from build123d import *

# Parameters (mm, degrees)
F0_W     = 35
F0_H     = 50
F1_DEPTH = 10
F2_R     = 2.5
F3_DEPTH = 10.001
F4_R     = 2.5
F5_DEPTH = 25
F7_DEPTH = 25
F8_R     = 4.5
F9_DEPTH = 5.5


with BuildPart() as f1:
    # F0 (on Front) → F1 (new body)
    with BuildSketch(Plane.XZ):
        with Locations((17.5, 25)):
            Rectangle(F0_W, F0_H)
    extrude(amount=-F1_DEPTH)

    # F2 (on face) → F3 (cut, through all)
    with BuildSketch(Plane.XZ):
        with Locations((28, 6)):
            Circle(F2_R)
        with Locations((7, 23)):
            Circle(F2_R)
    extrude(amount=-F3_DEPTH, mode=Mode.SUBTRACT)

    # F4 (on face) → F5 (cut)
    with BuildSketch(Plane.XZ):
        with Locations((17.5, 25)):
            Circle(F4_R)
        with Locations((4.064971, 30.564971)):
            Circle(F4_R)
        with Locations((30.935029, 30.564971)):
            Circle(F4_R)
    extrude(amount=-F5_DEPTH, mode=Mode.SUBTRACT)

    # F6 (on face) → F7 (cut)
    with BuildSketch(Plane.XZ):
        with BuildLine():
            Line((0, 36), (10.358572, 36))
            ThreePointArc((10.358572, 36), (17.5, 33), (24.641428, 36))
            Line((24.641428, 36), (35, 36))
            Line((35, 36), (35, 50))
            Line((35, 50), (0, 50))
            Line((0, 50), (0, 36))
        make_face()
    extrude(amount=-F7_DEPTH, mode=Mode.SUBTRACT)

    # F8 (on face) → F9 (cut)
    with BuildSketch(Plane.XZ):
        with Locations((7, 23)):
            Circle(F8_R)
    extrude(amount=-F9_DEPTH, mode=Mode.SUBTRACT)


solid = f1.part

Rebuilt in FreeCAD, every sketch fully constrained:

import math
import FreeCAD as App
import Part
import Sketcher
from FreeCAD import Vector


def add_polygon(sketch, points):
    """Adds a closed chain of lines whose ends are joined by coincident constraints."""
    first, n = sketch.GeometryCount, len(points)
    for a, b in zip(points, points[1:] + points[:1]):
        sketch.addGeometry(Part.LineSegment(App.Vector(*a, 0), App.Vector(*b, 0)), False)
    for i in range(n):
        sketch.addConstraint(Sketcher.Constraint("Coincident", first + i, 2, first + (i + 1) % n, 1))

doc = App.newDocument("Part")
params = doc.addObject("Spreadsheet::Sheet", "Params")
for row, (alias, value) in enumerate([
    ("sketch1_width", "35 mm"),
    ("sketch1_height", "50 mm"),
    ("pad1_length", "10 mm"),
    ("sketch2_diameter", "5 mm"),
    ("sketch3_diameter", "5 mm"),
    ("pocket2_length", "25 mm"),
    ("sketch4_radius", "9.999999 mm"),
    ("sketch4_width", "35 mm"),
    ("sketch4_height", "14 mm"),
    ("pocket3_length", "25 mm"),
    ("sketch5_diameter", "9 mm"),
    ("pocket4_length", "5.5 mm"),
], start=1):
    params.set(f"A{row}", alias)
    params.set(f"B{row}", "=" + value)
    params.setAlias(f"B{row}", alias)

body = doc.addObject("PartDesign::Body", "Body")

# Sketch on XZ plane
sketch1 = body.newObject("Sketcher::SketchObject", "Sketch")
sketch1.AttachmentSupport = (doc.getObject("XZ_Plane"), [""])
sketch1.MapMode = "FlatFace"
add_polygon(sketch1, [(0, 50), (0, 0), (35, 0), (35, 50)])  # lines 0-3
sketch1.addConstraint([
    Sketcher.Constraint("Vertical", 0),
    Sketcher.Constraint("Horizontal", 1),
    Sketcher.Constraint("Vertical", 2),
    Sketcher.Constraint("Horizontal", 3),
    Sketcher.Constraint("Coincident", 0, 2, -1, 1),
    Sketcher.Constraint("DistanceX", 1, 1, 1, 2, 35.0),
    Sketcher.Constraint("DistanceY", 0, 2, 0, 1, 50.0),
])
sketch1.setExpression("Constraints[9]", "Params.sketch1_width")
sketch1.setExpression("Constraints[10]", "Params.sketch1_height")
pad1 = body.newObject("PartDesign::Pad", "Pad")
pad1.Profile = sketch1
pad1.setExpression("Length", "Params.pad1_length")
pad1.Reversed = True

# Sketch on XZ plane
sketch2 = body.newObject("Sketcher::SketchObject", "Sketch001")
sketch2.AttachmentSupport = (doc.getObject("XZ_Plane"), [""])
sketch2.MapMode = "FlatFace"
sketch2.addGeometry([
    Part.Circle(Vector(28, 6, 0), Vector(0, 0, 1), 2.5),
    Part.Circle(Vector(7, 23, 0), Vector(0, 0, 1), 2.5),
], False)
sketch2.addConstraint([
    Sketcher.Constraint("Equal", 0, 1),
    Sketcher.Constraint("Diameter", 0, 5.0),
    Sketcher.Constraint("DistanceX", -1, 1, 0, 3, 28.0),
    Sketcher.Constraint("DistanceY", -1, 1, 0, 3, 6.0),
    Sketcher.Constraint("DistanceX", -1, 1, 1, 3, 7.0),
    Sketcher.Constraint("DistanceY", -1, 1, 1, 3, 23.0),
])
sketch2.setExpression("Constraints[1]", "Params.sketch2_diameter")
pocket1 = body.newObject("PartDesign::Pocket", "Pocket")
pocket1.Profile = sketch2
pocket1.Type = "ThroughAll"

# Sketch on XZ plane
sketch3 = body.newObject("Sketcher::SketchObject", "Sketch002")
sketch3.AttachmentSupport = (doc.getObject("XZ_Plane"), [""])
sketch3.MapMode = "FlatFace"
sketch3.addGeometry([
    Part.Circle(Vector(17.5, 25, 0), Vector(0, 0, 1), 2.5),
    Part.Circle(Vector(4.064971, 30.564971, 0), Vector(0, 0, 1), 2.5),
    Part.Circle(Vector(30.935029, 30.564971, 0), Vector(0, 0, 1), 2.5),
], False)
sketch3.addConstraint([
    Sketcher.Constraint("Equal", 0, 1),
    Sketcher.Constraint("Equal", 1, 2),
    Sketcher.Constraint("Horizontal", 1, 3, 2, 3),
    Sketcher.Constraint("Diameter", 0, 5.0),
    Sketcher.Constraint("DistanceY", -1, 1, 0, 3, 25.0),
    Sketcher.Constraint("DistanceX", -1, 1, 0, 3, 17.5),
    Sketcher.Constraint("DistanceX", -1, 1, 1, 3, 4.064971),
    Sketcher.Constraint("DistanceY", -1, 1, 1, 3, 30.564971),
    Sketcher.Constraint("DistanceX", -1, 1, 2, 3, 30.935029),
])
sketch3.setExpression("Constraints[3]", "Params.sketch3_diameter")
pocket2 = body.newObject("PartDesign::Pocket", "Pocket001")
pocket2.Profile = sketch3
pocket2.setExpression("Length", "Params.pocket2_length")

# Sketch on XZ plane
sketch4 = body.newObject("Sketcher::SketchObject", "Sketch003")
sketch4.AttachmentSupport = (doc.getObject("XZ_Plane"), [""])
sketch4.MapMode = "FlatFace"
sketch4.addGeometry([
    Part.LineSegment(Vector(0, 36, 0), Vector(10.358572, 36, 0)),  # 0
    Part.ArcOfCircle(Part.Circle(Vector(17.5, 42.999999, 0), Vector(0, 0, 1), 9.999999), math.radians(-135.572998), math.radians(-44.427002)),  # 1
    Part.LineSegment(Vector(24.641428, 36, 0), Vector(35, 36, 0)),  # 2
    Part.LineSegment(Vector(35, 36, 0), Vector(35, 50, 0)),  # 3
    Part.LineSegment(Vector(35, 50, 0), Vector(0, 50, 0)),  # 4
    Part.LineSegment(Vector(0, 50, 0), Vector(0, 36, 0)),  # 5
], False)
sketch4.addConstraint([
    Sketcher.Constraint("Coincident", 0, 2, 1, 1),
    Sketcher.Constraint("Coincident", 1, 2, 2, 1),
    Sketcher.Constraint("Coincident", 2, 2, 3, 1),
    Sketcher.Constraint("Coincident", 3, 2, 4, 1),
    Sketcher.Constraint("Coincident", 4, 2, 5, 1),
    Sketcher.Constraint("Coincident", 5, 2, 0, 1),
    Sketcher.Constraint("Horizontal", 0),
    Sketcher.Constraint("Horizontal", 2),
    Sketcher.Constraint("Vertical", 3),
    Sketcher.Constraint("Horizontal", 4),
    Sketcher.Constraint("Vertical", 5),
    Sketcher.Constraint("PointOnObject", 4, 2, -2),
    Sketcher.Constraint("Horizontal", 0, 2, 1, 2),
    Sketcher.Constraint("Equal", 0, 2),
    Sketcher.Constraint("Radius", 1, 9.999999),
    Sketcher.Constraint("DistanceX", 4, 2, 4, 1, 35.0),
    Sketcher.Constraint("DistanceY", 3, 1, 3, 2, 14.0),
    Sketcher.Constraint("DistanceY", -1, 1, 1, 3, 42.999999),
    Sketcher.Constraint("DistanceY", -1, 1, 0, 2, 36.0),
])
sketch4.setExpression("Constraints[14]", "Params.sketch4_radius")
sketch4.setExpression("Constraints[15]", "Params.sketch4_width")
sketch4.setExpression("Constraints[16]", "Params.sketch4_height")
pocket3 = body.newObject("PartDesign::Pocket", "Pocket002")
pocket3.Profile = sketch4
pocket3.setExpression("Length", "Params.pocket3_length")

# Sketch on XZ plane
sketch5 = body.newObject("Sketcher::SketchObject", "Sketch004")
sketch5.AttachmentSupport = (doc.getObject("XZ_Plane"), [""])
sketch5.MapMode = "FlatFace"
sketch5.addGeometry(Part.Circle(Vector(7, 23, 0), Vector(0, 0, 1), 4.5), False)
sketch5.addConstraint([
    Sketcher.Constraint("Diameter", 0, 9.0),
    Sketcher.Constraint("DistanceX", -1, 1, 0, 3, 7.0),
    Sketcher.Constraint("DistanceY", -1, 1, 0, 3, 23.0),
])
sketch5.setExpression("Constraints[0]", "Params.sketch5_diameter")
pocket4 = body.newObject("PartDesign::Pocket", "Pocket003")
pocket4.Profile = sketch5
pocket4.setExpression("Length", "Params.pocket4_length")

doc.recompute()
